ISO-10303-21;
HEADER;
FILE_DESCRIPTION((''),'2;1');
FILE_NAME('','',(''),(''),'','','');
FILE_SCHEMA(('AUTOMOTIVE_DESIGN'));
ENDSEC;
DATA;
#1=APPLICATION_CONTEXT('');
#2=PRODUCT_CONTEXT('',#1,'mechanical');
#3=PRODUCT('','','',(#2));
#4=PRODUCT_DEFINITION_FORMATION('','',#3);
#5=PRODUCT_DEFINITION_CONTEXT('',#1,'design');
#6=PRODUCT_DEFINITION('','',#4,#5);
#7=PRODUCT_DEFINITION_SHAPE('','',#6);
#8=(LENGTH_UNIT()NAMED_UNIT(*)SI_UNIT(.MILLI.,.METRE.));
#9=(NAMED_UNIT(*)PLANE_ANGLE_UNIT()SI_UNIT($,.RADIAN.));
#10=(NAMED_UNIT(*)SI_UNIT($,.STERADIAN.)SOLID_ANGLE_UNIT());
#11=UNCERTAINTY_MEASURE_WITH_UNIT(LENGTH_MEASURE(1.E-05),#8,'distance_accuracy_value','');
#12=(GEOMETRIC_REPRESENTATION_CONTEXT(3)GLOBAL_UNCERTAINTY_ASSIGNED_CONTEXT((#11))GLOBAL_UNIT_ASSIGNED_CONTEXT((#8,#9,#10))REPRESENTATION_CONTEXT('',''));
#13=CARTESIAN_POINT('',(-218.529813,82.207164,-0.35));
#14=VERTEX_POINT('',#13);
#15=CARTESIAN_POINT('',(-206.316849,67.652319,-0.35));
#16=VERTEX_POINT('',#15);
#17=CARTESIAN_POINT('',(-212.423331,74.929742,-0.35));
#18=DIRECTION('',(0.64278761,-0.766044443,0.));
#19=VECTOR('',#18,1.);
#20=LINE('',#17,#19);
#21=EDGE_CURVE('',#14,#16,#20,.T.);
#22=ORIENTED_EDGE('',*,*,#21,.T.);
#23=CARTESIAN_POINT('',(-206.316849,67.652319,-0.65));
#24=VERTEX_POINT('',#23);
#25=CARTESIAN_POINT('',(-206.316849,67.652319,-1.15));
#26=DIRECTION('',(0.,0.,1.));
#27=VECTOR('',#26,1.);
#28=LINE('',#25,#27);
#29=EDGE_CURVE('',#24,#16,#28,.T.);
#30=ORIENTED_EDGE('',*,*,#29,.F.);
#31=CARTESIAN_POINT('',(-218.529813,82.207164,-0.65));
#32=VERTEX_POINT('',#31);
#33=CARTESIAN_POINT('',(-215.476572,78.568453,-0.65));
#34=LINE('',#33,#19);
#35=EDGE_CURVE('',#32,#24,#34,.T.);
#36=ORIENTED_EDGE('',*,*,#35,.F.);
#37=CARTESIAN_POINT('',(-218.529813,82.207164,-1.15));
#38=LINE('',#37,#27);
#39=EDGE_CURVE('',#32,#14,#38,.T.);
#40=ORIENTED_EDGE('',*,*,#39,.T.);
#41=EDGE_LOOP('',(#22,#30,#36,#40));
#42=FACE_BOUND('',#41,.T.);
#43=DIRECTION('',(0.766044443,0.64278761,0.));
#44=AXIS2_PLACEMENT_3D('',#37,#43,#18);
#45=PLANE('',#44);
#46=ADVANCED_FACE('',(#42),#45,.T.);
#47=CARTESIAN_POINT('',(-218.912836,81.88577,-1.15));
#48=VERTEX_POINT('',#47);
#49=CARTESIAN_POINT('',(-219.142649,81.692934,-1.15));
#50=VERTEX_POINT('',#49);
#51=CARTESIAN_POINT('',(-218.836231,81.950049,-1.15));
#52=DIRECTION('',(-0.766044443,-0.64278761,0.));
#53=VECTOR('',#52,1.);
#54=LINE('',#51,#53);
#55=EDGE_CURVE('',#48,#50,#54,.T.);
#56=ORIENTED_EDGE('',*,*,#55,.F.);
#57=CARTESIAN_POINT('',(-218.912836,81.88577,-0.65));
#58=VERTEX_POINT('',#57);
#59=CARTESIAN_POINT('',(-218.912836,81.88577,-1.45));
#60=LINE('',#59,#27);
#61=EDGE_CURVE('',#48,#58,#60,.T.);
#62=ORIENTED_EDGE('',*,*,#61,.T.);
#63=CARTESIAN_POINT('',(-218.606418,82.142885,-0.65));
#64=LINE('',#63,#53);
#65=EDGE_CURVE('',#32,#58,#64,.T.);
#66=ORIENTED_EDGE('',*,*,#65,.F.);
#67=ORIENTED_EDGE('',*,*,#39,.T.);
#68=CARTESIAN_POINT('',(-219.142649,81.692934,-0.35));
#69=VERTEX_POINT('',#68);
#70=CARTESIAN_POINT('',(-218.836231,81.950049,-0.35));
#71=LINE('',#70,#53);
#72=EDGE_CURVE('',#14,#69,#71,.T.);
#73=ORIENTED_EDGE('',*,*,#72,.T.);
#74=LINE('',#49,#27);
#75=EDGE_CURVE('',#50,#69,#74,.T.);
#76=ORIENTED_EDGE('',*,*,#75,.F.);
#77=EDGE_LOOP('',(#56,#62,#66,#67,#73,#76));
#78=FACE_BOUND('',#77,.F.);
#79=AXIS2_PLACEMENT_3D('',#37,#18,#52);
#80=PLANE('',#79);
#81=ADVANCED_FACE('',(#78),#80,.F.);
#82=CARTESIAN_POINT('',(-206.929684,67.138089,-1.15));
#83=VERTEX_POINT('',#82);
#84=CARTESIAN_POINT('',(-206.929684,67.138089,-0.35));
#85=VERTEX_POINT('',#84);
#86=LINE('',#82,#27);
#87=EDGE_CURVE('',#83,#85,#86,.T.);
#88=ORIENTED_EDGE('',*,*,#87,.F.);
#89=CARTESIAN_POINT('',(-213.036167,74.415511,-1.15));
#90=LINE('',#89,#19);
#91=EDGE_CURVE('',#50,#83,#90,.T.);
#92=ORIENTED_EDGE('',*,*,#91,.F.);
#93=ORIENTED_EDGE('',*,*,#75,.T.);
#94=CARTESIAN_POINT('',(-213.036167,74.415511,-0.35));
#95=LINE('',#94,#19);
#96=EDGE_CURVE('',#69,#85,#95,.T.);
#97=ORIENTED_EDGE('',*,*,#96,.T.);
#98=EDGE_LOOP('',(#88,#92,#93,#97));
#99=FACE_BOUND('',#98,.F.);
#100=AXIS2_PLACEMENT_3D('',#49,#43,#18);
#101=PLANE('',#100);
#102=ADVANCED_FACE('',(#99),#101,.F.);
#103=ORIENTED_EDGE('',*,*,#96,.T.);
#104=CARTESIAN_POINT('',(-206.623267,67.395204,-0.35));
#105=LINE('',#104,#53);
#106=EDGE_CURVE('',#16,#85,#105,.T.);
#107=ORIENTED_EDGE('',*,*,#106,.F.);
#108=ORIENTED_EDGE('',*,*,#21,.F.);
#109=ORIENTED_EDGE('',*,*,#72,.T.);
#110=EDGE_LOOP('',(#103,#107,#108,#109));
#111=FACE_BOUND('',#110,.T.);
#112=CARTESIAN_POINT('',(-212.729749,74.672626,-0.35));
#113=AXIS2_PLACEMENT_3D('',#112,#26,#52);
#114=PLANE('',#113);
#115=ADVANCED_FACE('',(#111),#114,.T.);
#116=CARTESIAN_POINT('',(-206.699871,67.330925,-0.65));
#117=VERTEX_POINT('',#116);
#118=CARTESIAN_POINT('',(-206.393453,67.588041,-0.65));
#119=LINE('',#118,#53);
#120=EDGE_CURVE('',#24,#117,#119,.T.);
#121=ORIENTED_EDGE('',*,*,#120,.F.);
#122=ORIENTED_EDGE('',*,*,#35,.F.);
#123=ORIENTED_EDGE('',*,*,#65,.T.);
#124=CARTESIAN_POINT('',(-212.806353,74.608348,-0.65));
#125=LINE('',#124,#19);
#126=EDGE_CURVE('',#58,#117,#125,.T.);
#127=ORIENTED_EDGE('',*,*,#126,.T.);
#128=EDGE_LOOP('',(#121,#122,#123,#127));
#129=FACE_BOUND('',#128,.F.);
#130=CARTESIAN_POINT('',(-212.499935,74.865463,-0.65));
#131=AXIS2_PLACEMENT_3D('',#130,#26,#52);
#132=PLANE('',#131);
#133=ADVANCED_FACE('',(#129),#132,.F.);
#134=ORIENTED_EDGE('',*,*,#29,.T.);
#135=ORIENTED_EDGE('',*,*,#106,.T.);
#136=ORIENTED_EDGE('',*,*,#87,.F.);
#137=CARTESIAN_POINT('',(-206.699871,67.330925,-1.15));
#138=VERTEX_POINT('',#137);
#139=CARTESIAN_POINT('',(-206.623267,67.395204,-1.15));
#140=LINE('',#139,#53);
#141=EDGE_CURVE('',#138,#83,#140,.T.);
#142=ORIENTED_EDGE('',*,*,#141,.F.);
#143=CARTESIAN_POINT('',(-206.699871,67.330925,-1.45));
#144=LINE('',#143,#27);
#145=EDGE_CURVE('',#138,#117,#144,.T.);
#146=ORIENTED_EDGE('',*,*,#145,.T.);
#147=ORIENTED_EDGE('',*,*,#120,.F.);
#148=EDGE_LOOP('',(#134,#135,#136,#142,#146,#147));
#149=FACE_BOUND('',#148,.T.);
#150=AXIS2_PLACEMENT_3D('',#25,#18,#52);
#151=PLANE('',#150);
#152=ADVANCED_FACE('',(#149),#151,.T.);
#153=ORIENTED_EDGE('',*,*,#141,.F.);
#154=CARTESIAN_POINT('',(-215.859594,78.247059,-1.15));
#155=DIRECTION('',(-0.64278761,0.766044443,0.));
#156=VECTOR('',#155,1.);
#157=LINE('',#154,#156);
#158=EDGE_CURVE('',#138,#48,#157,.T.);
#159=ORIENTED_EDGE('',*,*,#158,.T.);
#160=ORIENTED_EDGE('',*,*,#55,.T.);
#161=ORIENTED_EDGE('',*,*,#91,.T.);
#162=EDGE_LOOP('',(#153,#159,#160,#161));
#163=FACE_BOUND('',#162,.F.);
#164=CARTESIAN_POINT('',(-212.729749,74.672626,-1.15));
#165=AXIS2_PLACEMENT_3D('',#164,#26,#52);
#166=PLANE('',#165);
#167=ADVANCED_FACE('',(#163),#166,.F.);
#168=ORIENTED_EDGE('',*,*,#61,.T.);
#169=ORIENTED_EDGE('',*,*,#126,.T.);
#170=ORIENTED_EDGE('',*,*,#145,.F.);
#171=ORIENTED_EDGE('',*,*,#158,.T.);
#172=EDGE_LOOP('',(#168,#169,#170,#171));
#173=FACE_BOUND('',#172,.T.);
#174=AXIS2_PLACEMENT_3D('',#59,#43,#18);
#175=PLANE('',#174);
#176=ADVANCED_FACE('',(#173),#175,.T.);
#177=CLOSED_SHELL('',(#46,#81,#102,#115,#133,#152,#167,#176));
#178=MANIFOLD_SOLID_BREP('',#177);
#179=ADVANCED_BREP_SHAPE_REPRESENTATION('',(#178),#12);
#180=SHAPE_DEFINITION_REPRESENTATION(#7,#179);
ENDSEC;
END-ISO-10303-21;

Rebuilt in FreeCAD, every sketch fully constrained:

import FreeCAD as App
import Part
import Sketcher
from FreeCAD import Vector

doc = App.newDocument("Part")
body = doc.addObject("PartDesign::Body", "Body")

# Sketch on XY plane
sketch1 = doc.addObject("Sketcher::SketchObject", "Sketch")
body.addObject(sketch1)
sketch1.AttachmentSupport = (doc.XY_Plane, [""])
sketch1.MapMode = "FlatFace"
sketch1.addGeometry([
    Part.LineSegment(Vector(0, 19, 0), Vector(0, 0, 0)),
    Part.LineSegment(Vector(0, 0, 0), Vector(0.8, 0, 0)),
    Part.LineSegment(Vector(0.8, 0, 0), Vector(0.8, 19, 0)),
    Part.LineSegment(Vector(0.8, 19, 0), Vector(0, 19, 0)),
], False)
sketch1.addConstraint([
    Sketcher.Constraint("Coincident", 0, 2, 1, 1),
    Sketcher.Constraint("Coincident", 1, 2, 2, 1),
    Sketcher.Constraint("Coincident", 2, 2, 3, 1),
    Sketcher.Constraint("Coincident", 3, 2, 0, 1),
    Sketcher.Constraint("Vertical", 0),
    Sketcher.Constraint("Horizontal", 1),
    Sketcher.Constraint("Vertical", 2),
    Sketcher.Constraint("Horizontal", 3),
    Sketcher.Constraint("Coincident", 0, 2, -1, 1),
    Sketcher.Constraint("DistanceY", 0, 2, 0, 1, 19.0),
    Sketcher.Constraint("DistanceX", 1, 1, 1, 2, 0.8),
])
pad1 = doc.addObject("PartDesign::Pad", "Pad")
body.addObject(pad1)
pad1.Profile = sketch1
pad1.Length = 0.8
body2 = doc.addObject("PartDesign::Body", "Body001")

# Sketch on XY plane
sketch2 = doc.addObject("Sketcher::SketchObject", "Sketch001")
body2.addObject(sketch2)
sketch2.AttachmentSupport = (doc.getObject("XY_Plane001"), [""])
sketch2.MapMode = "FlatFace"
sketch2.AttachmentOffset = App.Placement(Vector(0, 0, 0.3), App.Rotation())
sketch2.addGeometry([
    Part.LineSegment(Vector(0.3, 19, 0), Vector(0.3, 0, 0)),
    Part.LineSegment(Vector(0.3, 0, 0), Vector(1.1, 0, 0)),
    Part.LineSegment(Vector(1.1, 0, 0), Vector(1.1, 19, 0)),
    Part.LineSegment(Vector(1.1, 19, 0), Vector(0.3, 19, 0)),
], False)
sketch2.addConstraint([
    Sketcher.Constraint("Coincident", 0, 2, 1, 1),
    Sketcher.Constraint("Coincident", 1, 2, 2, 1),
    Sketcher.Constraint("Coincident", 2, 2, 3, 1),
    Sketcher.Constraint("Coincident", 3, 2, 0, 1),
    Sketcher.Constraint("Vertical", 0),
    Sketcher.Constraint("Horizontal", 1),
    Sketcher.Constraint("Vertical", 2),
    Sketcher.Constraint("Horizontal", 3),
    Sketcher.Constraint("PointOnObject", 0, 2, -1),
    Sketcher.Constraint("DistanceY", 0, 2, 0, 1, 19.0),
    Sketcher.Constraint("DistanceX", 1, 1, 1, 2, 0.8),
    Sketcher.Constraint("DistanceX", -1, 1, 0, 2, 0.3),
])
pad2 = doc.addObject("PartDesign::Pad", "Pad001")
body2.addObject(pad2)
pad2.Profile = sketch2
pad2.Length = 0.8
doc.recompute()

boolean = doc.addObject("PartDesign::Boolean", "Boolean")
body2.addObject(boolean)
boolean.Type = "Cut"
boolean.addObjects([body])
body3 = doc.addObject("PartDesign::Body", "Body002")
doc.recompute()

body2.Placement = App.Placement(Vector(-218.3, 82.4, -1.45), App.Rotation(Vector(0, 0, 1), 220))
boolean2 = doc.addObject("PartDesign::Boolean", "Boolean001")
body3.addObject(boolean2)
boolean2.Type = "Fuse"
boolean2.addObjects([body2])

doc.recompute()
